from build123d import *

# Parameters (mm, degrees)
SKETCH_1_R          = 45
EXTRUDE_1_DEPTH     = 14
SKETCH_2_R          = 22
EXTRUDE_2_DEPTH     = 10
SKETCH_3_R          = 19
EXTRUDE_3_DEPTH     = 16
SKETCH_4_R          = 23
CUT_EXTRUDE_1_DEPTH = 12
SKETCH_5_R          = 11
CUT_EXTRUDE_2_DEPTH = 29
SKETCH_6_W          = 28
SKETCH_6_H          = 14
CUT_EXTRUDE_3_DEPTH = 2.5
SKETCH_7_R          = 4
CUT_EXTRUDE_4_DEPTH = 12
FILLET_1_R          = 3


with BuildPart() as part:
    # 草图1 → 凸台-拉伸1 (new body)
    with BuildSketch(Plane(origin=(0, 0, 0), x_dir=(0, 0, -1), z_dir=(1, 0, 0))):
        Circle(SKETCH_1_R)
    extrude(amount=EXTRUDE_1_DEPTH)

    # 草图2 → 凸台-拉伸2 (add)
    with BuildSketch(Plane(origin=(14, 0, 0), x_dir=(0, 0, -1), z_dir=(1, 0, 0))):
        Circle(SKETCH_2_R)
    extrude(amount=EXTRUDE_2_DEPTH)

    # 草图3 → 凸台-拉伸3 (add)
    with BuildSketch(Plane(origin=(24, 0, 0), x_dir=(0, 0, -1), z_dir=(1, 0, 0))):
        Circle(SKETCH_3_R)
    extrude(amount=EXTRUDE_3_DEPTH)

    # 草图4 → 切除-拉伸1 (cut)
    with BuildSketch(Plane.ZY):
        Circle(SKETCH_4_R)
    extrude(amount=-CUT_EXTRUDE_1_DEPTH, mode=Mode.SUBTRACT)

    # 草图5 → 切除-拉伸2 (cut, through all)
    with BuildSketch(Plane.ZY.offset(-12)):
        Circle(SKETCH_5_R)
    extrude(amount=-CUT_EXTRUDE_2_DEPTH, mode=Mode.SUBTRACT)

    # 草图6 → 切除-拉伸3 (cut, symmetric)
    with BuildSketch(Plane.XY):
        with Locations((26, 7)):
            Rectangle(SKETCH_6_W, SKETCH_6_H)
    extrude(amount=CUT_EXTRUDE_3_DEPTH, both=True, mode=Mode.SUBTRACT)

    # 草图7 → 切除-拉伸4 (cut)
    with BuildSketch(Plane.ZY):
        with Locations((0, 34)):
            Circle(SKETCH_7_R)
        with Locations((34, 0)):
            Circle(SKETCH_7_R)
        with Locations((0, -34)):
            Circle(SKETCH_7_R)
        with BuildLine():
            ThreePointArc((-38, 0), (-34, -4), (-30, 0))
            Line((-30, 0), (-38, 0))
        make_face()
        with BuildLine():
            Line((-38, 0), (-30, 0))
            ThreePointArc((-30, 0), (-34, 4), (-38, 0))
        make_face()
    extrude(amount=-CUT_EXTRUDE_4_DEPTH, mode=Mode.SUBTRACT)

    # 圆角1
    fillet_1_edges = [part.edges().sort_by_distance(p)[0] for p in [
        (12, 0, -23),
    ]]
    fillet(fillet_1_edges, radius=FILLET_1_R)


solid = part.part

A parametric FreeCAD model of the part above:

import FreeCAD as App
import Part
import Sketcher
Q = App.Units.Quantity


def edges_at(feature, points):
    """Names of the edges that pass closest to the given points."""
    edges = feature.Shape.Edges
    near = lambda p: min(range(len(edges)), key=lambda i: edges[i].distToShape(Part.Vertex(*p))[0])
    return sorted({f"Edge{near(p) + 1}" for p in points})


def add_polygon(sketch, points):
    """Adds a closed chain of lines whose ends are joined by coincident constraints."""
    first, n = sketch.GeometryCount, len(points)
    for a, b in zip(points, points[1:] + points[:1]):
        sketch.addGeometry(Part.LineSegment(App.Vector(*a, 0), App.Vector(*b, 0)), False)
    for i in range(n):
        sketch.addConstraint(Sketcher.Constraint("Coincident", first + i, 2, first + (i + 1) % n, 1))

doc = App.newDocument("Part")
body = doc.addObject("PartDesign::Body", "Body")

sketch1 = body.newObject("Sketcher::SketchObject", "Sketch")
sketch1.AttachmentSupport = (doc.getObject("YZ_Plane"), [""])
sketch1.MapMode = "FlatFace"
sketch1.addGeometry(Part.Circle(App.Vector(0, 0, 0), App.Vector(0, 0, 1), 45), False)
sketch1.addConstraint([
    Sketcher.Constraint("Coincident", 0, 3, -1, 1),
    Sketcher.Constraint("Diameter", 0, Q("90 mm")),
])
pad1 = body.newObject("PartDesign::Pad", "Pad")
pad1.Profile = sketch1
pad1.Length = 14

sketch2 = body.newObject("Sketcher::SketchObject", "Sketch001")
sketch2.AttachmentSupport = (doc.getObject("YZ_Plane"), [""])
sketch2.MapMode = "FlatFace"
sketch2.AttachmentOffset = App.Placement(App.Vector(0, 0, 14), App.Rotation())
sketch2.addGeometry(Part.Circle(App.Vector(0, 0, 0), App.Vector(0, 0, 1), 22), False)
sketch2.addConstraint([
    Sketcher.Constraint("Coincident", 0, 3, -1, 1),
    Sketcher.Constraint("Diameter", 0, Q("44 mm")),
])
pad2 = body.newObject("PartDesign::Pad", "Pad001")
pad2.Profile = sketch2
pad2.Length = 10

sketch3 = body.newObject("Sketcher::SketchObject", "Sketch002")
sketch3.AttachmentSupport = (doc.getObject("YZ_Plane"), [""])
sketch3.MapMode = "FlatFace"
sketch3.AttachmentOffset = App.Placement(App.Vector(0, 0, 24), App.Rotation())
sketch3.addGeometry(Part.Circle(App.Vector(0, 0, 0), App.Vector(0, 0, 1), 19), False)
sketch3.addConstraint([
    Sketcher.Constraint("Coincident", 0, 3, -1, 1),
    Sketcher.Constraint("Diameter", 0, Q("38 mm")),
])
pad3 = body.newObject("PartDesign::Pad", "Pad002")
pad3.Profile = sketch3
pad3.Length = 16

sketch4 = body.newObject("Sketcher::SketchObject", "Sketch003")
sketch4.AttachmentSupport = (doc.getObject("YZ_Plane"), [""])
sketch4.MapMode = "FlatFace"
sketch4.addGeometry(Part.Circle(App.Vector(0, 0, 0), App.Vector(0, 0, 1), 23), False)
sketch4.addConstraint([
    Sketcher.Constraint("Coincident", 0, 3, -1, 1),
    Sketcher.Constraint("Diameter", 0, Q("46 mm")),
])
pocket1 = body.newObject("PartDesign::Pocket", "Pocket")
pocket1.Profile = sketch4
pocket1.Length = 12
pocket1.Reversed = True

sketch5 = body.newObject("Sketcher::SketchObject", "Sketch004")
sketch5.AttachmentSupport = (doc.getObject("YZ_Plane"), [""])
sketch5.MapMode = "FlatFace"
sketch5.AttachmentOffset = App.Placement(App.Vector(0, 0, 12), App.Rotation())
sketch5.addGeometry(Part.Circle(App.Vector(0, 0, 0), App.Vector(0, 0, 1), 11), False)
sketch5.addConstraint([
    Sketcher.Constraint("Coincident", 0, 3, -1, 1),
    Sketcher.Constraint("Diameter", 0, Q("22 mm")),
])
pocket2 = body.newObject("PartDesign::Pocket", "Pocket001")
pocket2.Profile = sketch5
pocket2.Type = "ThroughAll"
pocket2.Reversed = True

sketch6 = body.newObject("Sketcher::SketchObject", "Sketch005")
sketch6.AttachmentSupport = (doc.getObject("XY_Plane"), [""])
sketch6.MapMode = "FlatFace"
add_polygon(sketch6, [(12, 14), (12, 0), (40, 0), (40, 14)])
sketch6.addConstraint([
    Sketcher.Constraint("Vertical", 0),
    Sketcher.Constraint("Horizontal", 1),
    Sketcher.Constraint("Vertical", 2),
    Sketcher.Constraint("Horizontal", 3),
    Sketcher.Constraint("PointOnObject", 0, 2, -1),
    Sketcher.Constraint("DistanceX", 1, 1, 1, 2, Q("28 mm")),
    Sketcher.Constraint("DistanceY", 0, 2, 0, 1, Q("14 mm")),
    Sketcher.Constraint("DistanceX", -1, 1, 0, 2, Q("12 mm")),
])
pocket3 = body.newObject("PartDesign::Pocket", "Pocket002")
pocket3.Profile = sketch6
pocket3.Length = 5
pocket3.Midplane = True

sketch7 = body.newObject("Sketcher::SketchObject", "Sketch006")
sketch7.AttachmentSupport = (doc.getObject("YZ_Plane"), [""])
sketch7.MapMode = "FlatFace"
sketch7.addGeometry([
    Part.Circle(App.Vector(34, 0, 0), App.Vector(0, 0, 1), 4),
    Part.Circle(App.Vector(0, 34, 0), App.Vector(0, 0, 1), 4),
    Part.Circle(App.Vector(-34, 0, 0), App.Vector(0, 0, 1), 4),
    Part.Circle(App.Vector(0, -34, 0), App.Vector(0, 0, 1), 4),
], False)
sketch7.addConstraint([
    Sketcher.Constraint("Equal", 0, 1),
    Sketcher.Constraint("Equal", 1, 2),
    Sketcher.Constraint("Equal", 2, 3),
    Sketcher.Constraint("Symmetric", 0, 3, 2, 3, -1, 1),
    Sketcher.Constraint("Symmetric", 1, 3, 3, 3, -1, 1),
    Sketcher.Constraint("PointOnObject", 0, 3, -1),
    Sketcher.Constraint("PointOnObject", 1, 3, -2),
    Sketcher.Constraint("Diameter", 0, Q("8 mm")),
    Sketcher.Constraint("DistanceX", -1, 1, 0, 3, Q("34 mm")),
    Sketcher.Constraint("DistanceY", -1, 1, 1, 3, Q("34 mm")),
])
pocket4 = body.newObject("PartDesign::Pocket", "Pocket003")
pocket4.Profile = sketch7
pocket4.Length = 12
pocket4.Reversed = True
doc.recompute()

fillet = body.newObject("PartDesign::Fillet", "Fillet")
fillet.Base = (pocket4, edges_at(pocket4, [(12, 0, -23)]))
fillet.Radius = 3

doc.recompute()
